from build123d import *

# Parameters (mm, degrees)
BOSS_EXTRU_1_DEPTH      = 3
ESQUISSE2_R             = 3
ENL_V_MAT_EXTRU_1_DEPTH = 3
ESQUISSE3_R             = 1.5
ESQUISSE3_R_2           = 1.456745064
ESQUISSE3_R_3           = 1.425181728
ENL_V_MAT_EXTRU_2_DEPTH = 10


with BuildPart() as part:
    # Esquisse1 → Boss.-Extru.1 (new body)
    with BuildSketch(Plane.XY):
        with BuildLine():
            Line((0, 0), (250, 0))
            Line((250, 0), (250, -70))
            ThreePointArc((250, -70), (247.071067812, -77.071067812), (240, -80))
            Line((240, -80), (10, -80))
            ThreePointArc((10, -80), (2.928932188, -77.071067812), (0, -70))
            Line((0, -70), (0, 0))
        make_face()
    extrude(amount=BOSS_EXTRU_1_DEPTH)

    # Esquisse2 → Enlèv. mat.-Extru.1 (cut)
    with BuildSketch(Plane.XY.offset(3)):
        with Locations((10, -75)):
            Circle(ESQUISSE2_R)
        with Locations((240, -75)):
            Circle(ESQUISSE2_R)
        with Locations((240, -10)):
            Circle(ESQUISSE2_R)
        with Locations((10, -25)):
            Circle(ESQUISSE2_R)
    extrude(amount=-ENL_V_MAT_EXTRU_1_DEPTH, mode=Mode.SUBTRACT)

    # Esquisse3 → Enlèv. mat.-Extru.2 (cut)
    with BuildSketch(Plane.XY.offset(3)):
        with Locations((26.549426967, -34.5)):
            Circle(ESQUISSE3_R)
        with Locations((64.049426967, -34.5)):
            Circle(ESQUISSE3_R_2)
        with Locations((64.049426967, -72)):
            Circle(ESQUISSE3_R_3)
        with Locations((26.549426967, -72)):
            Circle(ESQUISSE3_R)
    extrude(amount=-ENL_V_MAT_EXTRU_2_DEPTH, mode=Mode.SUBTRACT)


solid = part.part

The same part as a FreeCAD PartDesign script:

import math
import FreeCAD as App
import Part
import Sketcher
from FreeCAD import Vector

doc = App.newDocument("Part")
body = doc.addObject("PartDesign::Body", "Body")

# Sketch on XY plane
sketch1 = body.newObject("Sketcher::SketchObject", "Sketch")
sketch1.AttachmentSupport = (doc.getObject("XY_Plane"), [""])
sketch1.MapMode = "FlatFace"
sketch1.addGeometry([
    Part.LineSegment(Vector(250, 0, 0), Vector(0, 0, 0)),  # 0
    Part.LineSegment(Vector(0, 0, 0), Vector(0, -70, 0)),  # 1
    Part.ArcOfCircle(Part.Circle(Vector(10, -70, 0), Vector(0, 0, 1), 10), math.radians(180), math.radians(270)),  # 2
    Part.LineSegment(Vector(10, -80, 0), Vector(240, -80, 0)),  # 3
    Part.ArcOfCircle(Part.Circle(Vector(240, -70, 0), Vector(0, 0, 1), 10), math.radians(-90), math.radians(0)),  # 4
    Part.LineSegment(Vector(250, -70, 0), Vector(250, 0, 0)),  # 5
], False)
sketch1.addConstraint([
    Sketcher.Constraint("Coincident", 0, 2, 1, 1),
    Sketcher.Constraint("Tangent", 1, 2, 2, 1),
    Sketcher.Constraint("Tangent", 2, 2, 3, 1),
    Sketcher.Constraint("Tangent", 3, 2, 4, 1),
    Sketcher.Constraint("Tangent", 4, 2, 5, 1),
    Sketcher.Constraint("Coincident", 5, 2, 0, 1),
    Sketcher.Constraint("Horizontal", 0),
    Sketcher.Constraint("Vertical", 1),
    Sketcher.Constraint("Horizontal", 3),
    Sketcher.Constraint("Vertical", 5),
    Sketcher.Constraint("Coincident", 0, 2, -1, 1),
    Sketcher.Constraint("Equal", 2, 4),
    Sketcher.Constraint("Radius", 2, 10.0),
    Sketcher.Constraint("DistanceX", 0, 2, 0, 1, 250.0),
    Sketcher.Constraint("DistanceY", 1, 2, 1, 1, 70.0),
])
pad1 = body.newObject("PartDesign::Pad", "Pad")
pad1.Profile = sketch1
pad1.Length = 3

# Sketch on XY plane
sketch2 = body.newObject("Sketcher::SketchObject", "Sketch001")
sketch2.AttachmentSupport = (doc.getObject("XY_Plane"), [""])
sketch2.MapMode = "FlatFace"
sketch2.AttachmentOffset = App.Placement(Vector(0, 0, 3), App.Rotation())
sketch2.addGeometry([
    Part.Circle(Vector(10, -75, 0), Vector(0, 0, 1), 3),
    Part.Circle(Vector(240, -75, 0), Vector(0, 0, 1), 3),
    Part.Circle(Vector(240, -10, 0), Vector(0, 0, 1), 3),
    Part.Circle(Vector(10, -25, 0), Vector(0, 0, 1), 3),
], False)
sketch2.addConstraint([
    Sketcher.Constraint("Equal", 0, 1),
    Sketcher.Constraint("Equal", 1, 2),
    Sketcher.Constraint("Equal", 2, 3),
    Sketcher.Constraint("Horizontal", 0, 3, 1, 3),
    Sketcher.Constraint("Vertical", 1, 3, 2, 3),
    Sketcher.Constraint("Vertical", 0, 3, 3, 3),
    Sketcher.Constraint("Diameter", 0, 6.0),
    Sketcher.Constraint("DistanceX", -1, 1, 0, 3, 10.0),
    Sketcher.Constraint("DistanceY", 0, 3, -1, 1, 75.0),
    Sketcher.Constraint("DistanceX", -1, 1, 1, 3, 240.0),
    Sketcher.Constraint("DistanceY", 2, 3, -1, 1, 10.0),
    Sketcher.Constraint("DistanceY", 3, 3, -1, 1, 25.0),
])
pocket1 = body.newObject("PartDesign::Pocket", "Pocket")
pocket1.Profile = sketch2
pocket1.Length = 3

# Sketch on XY plane
sketch3 = body.newObject("Sketcher::SketchObject", "Sketch002")
sketch3.AttachmentSupport = (doc.getObject("XY_Plane"), [""])
sketch3.MapMode = "FlatFace"
sketch3.AttachmentOffset = App.Placement(Vector(0, 0, 3), App.Rotation())
sketch3.addGeometry([
    Part.Circle(Vector(26.5, -34.5, 0), Vector(0, 0, 1), 1.5),
    Part.Circle(Vector(64, -34.5, 0), Vector(0, 0, 1), 1.5),
    Part.Circle(Vector(64, -72, 0), Vector(0, 0, 1), 1.4),
    Part.Circle(Vector(26.5, -72, 0), Vector(0, 0, 1), 1.5),
], False)
sketch3.addConstraint([
    Sketcher.Constraint("Equal", 0, 3),
    Sketcher.Constraint("Horizontal", 0, 3, 1, 3),
    Sketcher.Constraint("Horizontal", 2, 3, 3, 3),
    Sketcher.Constraint("Vertical", 1, 3, 2, 3),
    Sketcher.Constraint("Vertical", 0, 3, 3, 3),
    Sketcher.Constraint("Diameter", 0, 3.0),
    Sketcher.Constraint("DistanceY", 2, 3, -1, 1, 72.0),
    Sketcher.Constraint("DistanceY", 0, 3, -1, 1, 34.5),
    Sketcher.Constraint("DistanceX", 0, 3, 1, 3, 37.5),
    Sketcher.Constraint("Diameter", 1, 2.91349),
    Sketcher.Constraint("Diameter", 2, 2.850363),
    Sketcher.Constraint("DistanceX", -1, 1, 0, 3, 26.549427),
])
pocket2 = body.newObject("PartDesign::Pocket", "Pocket001")
pocket2.Profile = sketch3
pocket2.Length = 10

doc.recompute()
